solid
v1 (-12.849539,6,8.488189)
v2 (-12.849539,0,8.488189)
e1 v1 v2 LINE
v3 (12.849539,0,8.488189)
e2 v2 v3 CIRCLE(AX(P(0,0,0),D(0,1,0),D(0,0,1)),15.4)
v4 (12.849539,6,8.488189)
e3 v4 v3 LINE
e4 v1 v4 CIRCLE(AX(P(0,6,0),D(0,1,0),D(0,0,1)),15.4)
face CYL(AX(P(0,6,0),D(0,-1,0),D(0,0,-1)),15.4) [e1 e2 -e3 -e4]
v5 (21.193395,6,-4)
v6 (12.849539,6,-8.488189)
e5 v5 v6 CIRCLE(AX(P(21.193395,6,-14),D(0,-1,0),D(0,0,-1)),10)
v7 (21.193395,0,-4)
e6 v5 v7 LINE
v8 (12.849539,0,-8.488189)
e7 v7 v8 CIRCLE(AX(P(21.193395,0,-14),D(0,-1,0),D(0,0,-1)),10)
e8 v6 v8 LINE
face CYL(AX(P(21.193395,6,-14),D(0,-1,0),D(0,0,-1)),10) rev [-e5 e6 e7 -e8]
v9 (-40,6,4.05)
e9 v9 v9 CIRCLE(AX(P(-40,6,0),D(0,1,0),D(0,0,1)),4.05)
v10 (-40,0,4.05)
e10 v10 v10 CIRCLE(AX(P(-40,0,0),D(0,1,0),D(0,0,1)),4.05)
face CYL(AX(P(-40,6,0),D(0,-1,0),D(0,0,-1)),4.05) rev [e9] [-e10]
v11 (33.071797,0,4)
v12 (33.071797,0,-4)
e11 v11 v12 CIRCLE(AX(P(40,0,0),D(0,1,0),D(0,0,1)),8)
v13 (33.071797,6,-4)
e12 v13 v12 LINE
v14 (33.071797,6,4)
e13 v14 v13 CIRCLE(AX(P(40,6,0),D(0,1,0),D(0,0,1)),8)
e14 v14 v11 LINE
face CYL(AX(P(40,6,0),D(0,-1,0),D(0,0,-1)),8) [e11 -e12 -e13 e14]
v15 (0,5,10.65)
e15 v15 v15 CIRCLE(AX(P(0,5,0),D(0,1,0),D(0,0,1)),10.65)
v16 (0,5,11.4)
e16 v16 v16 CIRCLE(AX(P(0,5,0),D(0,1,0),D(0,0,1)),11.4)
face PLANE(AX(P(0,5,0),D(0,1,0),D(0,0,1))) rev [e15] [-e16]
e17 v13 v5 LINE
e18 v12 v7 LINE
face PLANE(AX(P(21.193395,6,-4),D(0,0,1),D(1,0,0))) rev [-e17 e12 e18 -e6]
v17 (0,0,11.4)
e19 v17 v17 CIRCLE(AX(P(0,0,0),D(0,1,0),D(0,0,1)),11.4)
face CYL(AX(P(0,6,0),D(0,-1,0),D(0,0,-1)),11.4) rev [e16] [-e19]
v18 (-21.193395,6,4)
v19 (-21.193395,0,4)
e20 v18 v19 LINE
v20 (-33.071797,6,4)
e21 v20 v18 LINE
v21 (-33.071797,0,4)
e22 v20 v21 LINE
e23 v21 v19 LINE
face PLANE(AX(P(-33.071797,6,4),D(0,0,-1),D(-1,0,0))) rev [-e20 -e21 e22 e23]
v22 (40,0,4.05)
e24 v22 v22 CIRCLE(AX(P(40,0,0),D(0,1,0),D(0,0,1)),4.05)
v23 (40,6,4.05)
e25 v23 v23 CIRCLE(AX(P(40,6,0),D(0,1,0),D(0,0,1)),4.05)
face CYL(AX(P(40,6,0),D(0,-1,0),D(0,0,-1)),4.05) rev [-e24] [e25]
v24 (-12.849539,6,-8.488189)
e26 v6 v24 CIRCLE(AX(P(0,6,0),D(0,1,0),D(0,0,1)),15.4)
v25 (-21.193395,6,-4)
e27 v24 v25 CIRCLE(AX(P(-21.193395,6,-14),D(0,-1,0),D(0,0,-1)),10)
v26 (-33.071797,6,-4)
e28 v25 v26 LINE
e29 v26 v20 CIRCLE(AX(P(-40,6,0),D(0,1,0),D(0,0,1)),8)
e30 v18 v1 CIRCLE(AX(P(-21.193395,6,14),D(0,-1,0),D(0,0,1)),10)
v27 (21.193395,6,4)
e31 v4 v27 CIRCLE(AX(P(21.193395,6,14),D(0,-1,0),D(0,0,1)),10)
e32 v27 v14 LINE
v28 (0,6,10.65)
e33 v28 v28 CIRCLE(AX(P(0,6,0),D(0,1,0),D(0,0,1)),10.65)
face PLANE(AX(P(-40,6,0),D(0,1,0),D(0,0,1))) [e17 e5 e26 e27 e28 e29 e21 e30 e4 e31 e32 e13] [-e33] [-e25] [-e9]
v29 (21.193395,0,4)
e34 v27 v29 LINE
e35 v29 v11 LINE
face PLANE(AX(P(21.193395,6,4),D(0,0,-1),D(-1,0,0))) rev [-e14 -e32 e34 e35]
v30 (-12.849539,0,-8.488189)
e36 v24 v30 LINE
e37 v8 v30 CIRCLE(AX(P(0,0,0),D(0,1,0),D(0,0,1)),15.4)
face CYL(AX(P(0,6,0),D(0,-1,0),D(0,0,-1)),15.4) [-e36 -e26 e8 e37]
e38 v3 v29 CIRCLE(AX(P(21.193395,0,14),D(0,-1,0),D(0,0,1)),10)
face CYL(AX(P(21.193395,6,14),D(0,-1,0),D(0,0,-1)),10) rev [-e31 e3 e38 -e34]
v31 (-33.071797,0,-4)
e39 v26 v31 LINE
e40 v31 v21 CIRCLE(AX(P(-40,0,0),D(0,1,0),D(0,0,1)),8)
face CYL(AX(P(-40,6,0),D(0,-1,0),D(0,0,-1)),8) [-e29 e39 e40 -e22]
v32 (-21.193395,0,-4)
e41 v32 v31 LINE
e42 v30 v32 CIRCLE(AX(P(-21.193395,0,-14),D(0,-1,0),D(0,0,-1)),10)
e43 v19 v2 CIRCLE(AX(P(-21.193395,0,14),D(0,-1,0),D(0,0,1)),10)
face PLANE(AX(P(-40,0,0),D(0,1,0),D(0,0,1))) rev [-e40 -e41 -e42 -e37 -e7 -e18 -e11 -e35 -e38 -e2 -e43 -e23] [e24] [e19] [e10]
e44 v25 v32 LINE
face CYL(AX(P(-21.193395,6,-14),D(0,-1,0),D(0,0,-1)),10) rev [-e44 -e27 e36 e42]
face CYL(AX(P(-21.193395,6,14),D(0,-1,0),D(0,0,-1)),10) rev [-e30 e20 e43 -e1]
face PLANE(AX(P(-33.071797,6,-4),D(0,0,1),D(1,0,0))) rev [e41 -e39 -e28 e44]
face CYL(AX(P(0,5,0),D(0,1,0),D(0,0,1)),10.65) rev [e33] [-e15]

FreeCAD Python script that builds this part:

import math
import FreeCAD as App
import Part
import Sketcher
Q = App.Units.Quantity

doc = App.newDocument("Part")
body = doc.addObject("PartDesign::Body", "Body")

# Sketch on XZ plane
sketch1 = doc.addObject("Sketcher::SketchObject", "Sketch")
body.addObject(sketch1)
sketch1.AttachmentSupport = (doc.XZ_Plane, [""])
sketch1.MapMode = "FlatFace"
sketch1.addGeometry(Part.LineSegment(App.Vector(-21.2, -4, 0), App.Vector(-33.1, -4, 0)), False)
sketch1.addGeometry(Part.ArcOfCircle(Part.Circle(App.Vector(-40, 0, 0), App.Vector(0, 0, 1), 8), math.radians(30), math.radians(330)), False)
sketch1.addGeometry(Part.LineSegment(App.Vector(-33.1, 4, 0), App.Vector(-21.2, 4, 0)), False)
sketch1.addGeometry(Part.ArcOfCircle(Part.Circle(App.Vector(-21.2, 14, 0), App.Vector(0, 0, 1), 10), math.radians(-90), math.radians(-33)), False)
sketch1.addGeometry(Part.ArcOfCircle(Part.Circle(App.Vector(0, 0, 0), App.Vector(0, 0, 1), 15.4), math.radians(33), math.radians(147)), False)
sketch1.addGeometry(Part.ArcOfCircle(Part.Circle(App.Vector(21.2, 14, 0), App.Vector(0, 0, 1), 10), math.radians(-147), math.radians(-90)), False)
sketch1.addGeometry(Part.LineSegment(App.Vector(21.2, 4, 0), App.Vector(33.1, 4, 0)), False)
sketch1.addGeometry(Part.ArcOfCircle(Part.Circle(App.Vector(40, 0, 0), App.Vector(0, 0, 1), 8), math.radians(-150), math.radians(150)), False)
sketch1.addGeometry(Part.LineSegment(App.Vector(33.1, -4, 0), App.Vector(21.2, -4, 0)), False)
sketch1.addGeometry(Part.ArcOfCircle(Part.Circle(App.Vector(21.2, -14, 0), App.Vector(0, 0, 1), 10), math.radians(90), math.radians(147)), False)
sketch1.addGeometry(Part.ArcOfCircle(Part.Circle(App.Vector(0, 0, 0), App.Vector(0, 0, 1), 15.4), math.radians(-147), math.radians(-33)), False)
sketch1.addGeometry(Part.ArcOfCircle(Part.Circle(App.Vector(-21.2, -14, 0), App.Vector(0, 0, 1), 10), math.radians(33), math.radians(90)), False)
sketch1.addGeometry(Part.Circle(App.Vector(40, 0, 0), App.Vector(0, 0, 1), 4), False)
sketch1.addGeometry(Part.Circle(App.Vector(0, 0, 0), App.Vector(0, 0, 1), 11.4), False)
sketch1.addGeometry(Part.Circle(App.Vector(-40, 0, 0), App.Vector(0, 0, 1), 4), False)
sketch1.addConstraint(Sketcher.Constraint("Coincident", 0, 2, 1, 2))
sketch1.addConstraint(Sketcher.Constraint("Coincident", 1, 1, 2, 1))
sketch1.addConstraint(Sketcher.Constraint("Tangent", 2, 2, 3, 1))
sketch1.addConstraint(Sketcher.Constraint("Tangent", 3, 2, 4, 2))
sketch1.addConstraint(Sketcher.Constraint("Tangent", 4, 1, 5, 1))
sketch1.addConstraint(Sketcher.Constraint("Tangent", 5, 2, 6, 1))
sketch1.addConstraint(Sketcher.Constraint("Coincident", 6, 2, 7, 2))
sketch1.addConstraint(Sketcher.Constraint("Coincident", 7, 1, 8, 1))
sketch1.addConstraint(Sketcher.Constraint("Tangent", 8, 2, 9, 1))
sketch1.addConstraint(Sketcher.Constraint("Tangent", 9, 2, 10, 2))
sketch1.addConstraint(Sketcher.Constraint("Tangent", 10, 1, 11, 1))
sketch1.addConstraint(Sketcher.Constraint("Tangent", 11, 2, 0, 1))
sketch1.addConstraint(Sketcher.Constraint("Horizontal", 0))
sketch1.addConstraint(Sketcher.Constraint("Horizontal", 2))
sketch1.addConstraint(Sketcher.Constraint("Horizontal", 6))
sketch1.addConstraint(Sketcher.Constraint("Horizontal", 8))
sketch1.addConstraint(Sketcher.Constraint("Coincident", 4, 3, -1, 1))
sketch1.addConstraint(Sketcher.Constraint("Coincident", 10, 3, -1, 1))
sketch1.addConstraint(Sketcher.Constraint("Coincident", 13, 3, -1, 1))
sketch1.addConstraint(Sketcher.Constraint("Coincident", 12, 3, 7, 3))
sketch1.addConstraint(Sketcher.Constraint("Coincident", 14, 3, 1, 3))
sketch1.addConstraint(Sketcher.Constraint("Equal", 3, 5))
sketch1.addConstraint(Sketcher.Constraint("Equal", 1, 7))
sketch1.addConstraint(Sketcher.Constraint("Equal", 5, 9))
sketch1.addConstraint(Sketcher.Constraint("Equal", 4, 10))
sketch1.addConstraint(Sketcher.Constraint("Equal", 9, 11))
sketch1.addConstraint(Sketcher.Constraint("Equal", 12, 14))
sketch1.addConstraint(Sketcher.Constraint("Symmetric", 1, 3, 7, 3, -1, 1))
sketch1.addConstraint(Sketcher.Constraint("Symmetric", 1, 1, 6, 2, -2))
sketch1.addConstraint(Sketcher.Constraint("Horizontal", 9, 3, 11, 3))
sketch1.addConstraint(Sketcher.Constraint("Vertical", 5, 3, 9, 3))
sketch1.addConstraint(Sketcher.Constraint("Radius", 1, Q("8 mm")))
sketch1.addConstraint(Sketcher.Constraint("Radius", 3, Q("10 mm")))
sketch1.addConstraint(Sketcher.Constraint("Diameter", 12, Q("8.1 mm")))
sketch1.addConstraint(Sketcher.Constraint("Diameter", 13, Q("22.8 mm")))
sketch1.addConstraint(Sketcher.Constraint("Radius", 4, Q("15.4 mm")))
sketch1.addConstraint(Sketcher.Constraint("DistanceX", 1, 3, -1, 1, Q("40 mm")))
sketch1.addConstraint(Sketcher.Constraint("DistanceY", -1, 1, 3, 3, Q("14 mm")))
pad1 = doc.addObject("PartDesign::Pad", "Pad")
body.addObject(pad1)
pad1.Profile = sketch1
pad1.Length = 6
pad1.Reversed = True

# Sketch on XZ plane
sketch2 = doc.addObject("Sketcher::SketchObject", "Sketch001")
body.addObject(sketch2)
sketch2.AttachmentSupport = (doc.XZ_Plane, [""])
sketch2.MapMode = "FlatFace"
sketch2.AttachmentOffset = App.Placement(App.Vector(0, 0, -5), App.Rotation())
sketch2.addGeometry(Part.Circle(App.Vector(0, 0, 0), App.Vector(0, 0, 1), 11), False)
sketch2.addGeometry(Part.Circle(App.Vector(0, 0, 0), App.Vector(0, 0, 1), 11), False)
sketch2.addConstraint(Sketcher.Constraint("Coincident", 0, 3, -1, 1))
sketch2.addConstraint(Sketcher.Constraint("Coincident", 1, 3, -1, 1))
sketch2.addConstraint(Sketcher.Constraint("Diameter", 0, Q("22.8 mm")))
sketch2.addConstraint(Sketcher.Constraint("Diameter", 1, Q("21.3 mm")))
pad2 = doc.addObject("PartDesign::Pad", "Pad001")
body.addObject(pad2)
pad2.Profile = sketch2
pad2.Length = 1
pad2.Reversed = True

doc.recompute()
